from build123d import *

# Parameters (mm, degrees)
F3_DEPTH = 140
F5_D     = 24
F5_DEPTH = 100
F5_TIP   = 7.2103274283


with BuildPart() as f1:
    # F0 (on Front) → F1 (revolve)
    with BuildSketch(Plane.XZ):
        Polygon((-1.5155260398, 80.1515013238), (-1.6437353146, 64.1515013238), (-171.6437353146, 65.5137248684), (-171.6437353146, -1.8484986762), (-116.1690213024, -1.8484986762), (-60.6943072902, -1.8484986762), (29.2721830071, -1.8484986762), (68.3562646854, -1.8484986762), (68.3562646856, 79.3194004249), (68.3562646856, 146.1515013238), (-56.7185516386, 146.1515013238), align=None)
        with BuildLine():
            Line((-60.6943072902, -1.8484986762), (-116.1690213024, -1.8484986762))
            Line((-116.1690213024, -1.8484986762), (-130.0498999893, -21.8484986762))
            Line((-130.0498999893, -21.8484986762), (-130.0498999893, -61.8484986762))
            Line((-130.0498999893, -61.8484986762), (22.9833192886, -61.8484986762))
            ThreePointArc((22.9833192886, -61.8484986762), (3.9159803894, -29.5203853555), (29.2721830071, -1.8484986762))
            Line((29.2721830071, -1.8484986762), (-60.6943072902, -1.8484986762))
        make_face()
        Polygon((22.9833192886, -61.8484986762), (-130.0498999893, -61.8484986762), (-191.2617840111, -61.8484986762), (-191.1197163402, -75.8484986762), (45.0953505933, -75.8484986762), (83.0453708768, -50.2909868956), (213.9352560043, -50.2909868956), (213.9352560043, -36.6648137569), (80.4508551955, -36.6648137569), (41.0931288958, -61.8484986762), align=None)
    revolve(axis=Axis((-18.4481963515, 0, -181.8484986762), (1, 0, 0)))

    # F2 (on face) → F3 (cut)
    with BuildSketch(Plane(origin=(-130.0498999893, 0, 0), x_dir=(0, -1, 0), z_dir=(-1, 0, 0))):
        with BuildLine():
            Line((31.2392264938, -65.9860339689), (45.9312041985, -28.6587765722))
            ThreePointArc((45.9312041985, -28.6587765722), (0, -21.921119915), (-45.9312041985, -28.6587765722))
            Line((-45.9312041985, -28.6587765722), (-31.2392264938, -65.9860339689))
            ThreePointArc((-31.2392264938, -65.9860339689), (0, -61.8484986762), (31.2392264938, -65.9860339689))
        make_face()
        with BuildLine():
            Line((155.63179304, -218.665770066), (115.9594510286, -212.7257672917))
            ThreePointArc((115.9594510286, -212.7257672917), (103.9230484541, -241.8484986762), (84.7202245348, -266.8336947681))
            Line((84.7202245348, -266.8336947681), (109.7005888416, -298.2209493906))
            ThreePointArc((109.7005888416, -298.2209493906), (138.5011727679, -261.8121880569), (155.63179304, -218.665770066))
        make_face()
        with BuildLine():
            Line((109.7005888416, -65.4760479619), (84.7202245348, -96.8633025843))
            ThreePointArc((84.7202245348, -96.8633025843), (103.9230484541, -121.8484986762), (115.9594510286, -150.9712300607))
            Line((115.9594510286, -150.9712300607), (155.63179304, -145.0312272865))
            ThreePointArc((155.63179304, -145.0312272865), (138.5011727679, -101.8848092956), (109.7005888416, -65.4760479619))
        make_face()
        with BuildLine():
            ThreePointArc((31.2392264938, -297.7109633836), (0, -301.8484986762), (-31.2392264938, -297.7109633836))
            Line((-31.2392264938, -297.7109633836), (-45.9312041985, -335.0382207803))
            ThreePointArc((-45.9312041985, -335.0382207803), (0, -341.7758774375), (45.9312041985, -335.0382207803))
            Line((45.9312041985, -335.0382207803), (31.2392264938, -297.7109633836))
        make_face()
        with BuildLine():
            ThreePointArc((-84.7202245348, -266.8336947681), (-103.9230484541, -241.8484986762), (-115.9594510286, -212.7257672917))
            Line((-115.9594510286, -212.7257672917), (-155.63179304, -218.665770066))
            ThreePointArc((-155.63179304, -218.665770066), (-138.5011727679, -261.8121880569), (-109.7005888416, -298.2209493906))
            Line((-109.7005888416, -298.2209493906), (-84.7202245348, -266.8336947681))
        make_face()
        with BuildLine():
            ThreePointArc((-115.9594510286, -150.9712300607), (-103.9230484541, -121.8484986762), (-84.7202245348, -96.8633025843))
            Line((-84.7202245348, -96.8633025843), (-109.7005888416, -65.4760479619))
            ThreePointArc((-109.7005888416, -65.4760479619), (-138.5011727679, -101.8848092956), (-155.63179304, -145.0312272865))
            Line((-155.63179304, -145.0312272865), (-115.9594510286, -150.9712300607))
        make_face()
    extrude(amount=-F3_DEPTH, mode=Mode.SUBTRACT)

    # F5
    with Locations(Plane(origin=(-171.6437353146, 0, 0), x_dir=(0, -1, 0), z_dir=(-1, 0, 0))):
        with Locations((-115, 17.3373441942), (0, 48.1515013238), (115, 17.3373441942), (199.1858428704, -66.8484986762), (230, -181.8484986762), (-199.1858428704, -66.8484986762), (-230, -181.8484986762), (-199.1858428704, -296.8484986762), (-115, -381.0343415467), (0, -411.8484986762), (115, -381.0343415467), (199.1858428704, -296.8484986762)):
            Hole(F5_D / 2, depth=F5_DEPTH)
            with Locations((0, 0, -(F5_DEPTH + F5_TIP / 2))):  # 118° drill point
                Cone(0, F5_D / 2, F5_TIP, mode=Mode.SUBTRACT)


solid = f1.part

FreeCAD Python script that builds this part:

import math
import FreeCAD as App
import Part
import Sketcher

V = App.Vector
Q = App.Units.Quantity

doc = App.newDocument("Part")
body = doc.addObject("PartDesign::Body", "Body")

sketch1 = body.newObject("Sketcher::SketchObject", "Sketch")
sketch1.AttachmentSupport = (doc.getObject("XZ_Plane"), [""])
sketch1.MapMode = "FlatFace"
sketch1.addGeometry([
    Part.LineSegment(V(-1.515526, 80.151501, 0), V(-1.643735, 64.151501, 0)),
    Part.LineSegment(V(-1.643735, 64.151501, 0), V(-171.643735, 65.513725, 0)),
    Part.LineSegment(V(-171.643735, 65.513725, 0), V(-171.643735, -1.848499, 0)),
    Part.LineSegment(V(-171.643735, -1.848499, 0), V(-116.169021, -1.848499, 0)),
    Part.LineSegment(V(-116.169021, -1.848499, 0), V(-130.0499, -21.848499, 0)),
    Part.LineSegment(V(-130.0499, -21.848499, 0), V(-130.0499, -61.848499, 0)),
    Part.LineSegment(V(-130.0499, -61.848499, 0), V(-191.261784, -61.848499, 0)),
    Part.LineSegment(V(-191.261784, -61.848499, 0), V(-191.119716, -75.848499, 0)),
    Part.LineSegment(V(-191.119716, -75.848499, 0), V(45.095351, -75.848499, 0)),
    Part.LineSegment(V(45.095351, -75.848499, 0), V(83.045371, -50.290987, 0)),
    Part.LineSegment(V(83.045371, -50.290987, 0), V(213.935256, -50.290987, 0)),
    Part.LineSegment(V(213.935256, -50.290987, 0), V(213.935256, -36.664814, 0)),
    Part.LineSegment(V(213.935256, -36.664814, 0), V(80.450855, -36.664814, 0)),
    Part.LineSegment(V(80.450855, -36.664814, 0), V(41.093129, -61.848499, 0)),
    Part.LineSegment(V(41.093129, -61.848499, 0), V(22.983319, -61.848499, 0)),
    Part.ArcOfCircle(Part.Circle(V(35.281394, -32.807932, 0), V(0, 0, 1), 31.537234), math.radians(100.984497), math.radians(247.048355)),
    Part.LineSegment(V(29.272183, -1.848499, 0), V(68.356265, -1.848499, 0)),
    Part.LineSegment(V(68.356265, -1.848499, 0), V(68.356265, 79.3194, 0)),
    Part.LineSegment(V(68.356265, 79.3194, 0), V(68.356265, 146.151501, 0)),
    Part.LineSegment(V(68.356265, 146.151501, 0), V(-56.718552, 146.151501, 0)),
    Part.LineSegment(V(-56.718552, 146.151501, 0), V(-1.515526, 80.151501, 0)),
], False)
sketch1.addGeometry(Part.LineSegment(V(-191.261784, -181.848499, 0), V(213.935256, -181.848499, 0)), True)
sketch1.addConstraint([
    Sketcher.Constraint("Coincident", 0, 2, 1, 1),
    Sketcher.Constraint("Coincident", 1, 2, 2, 1),
    Sketcher.Constraint("Coincident", 2, 2, 3, 1),
    Sketcher.Constraint("Coincident", 3, 2, 4, 1),
    Sketcher.Constraint("Coincident", 4, 2, 5, 1),
    Sketcher.Constraint("Coincident", 5, 2, 6, 1),
    Sketcher.Constraint("Coincident", 6, 2, 7, 1),
    Sketcher.Constraint("Coincident", 7, 2, 8, 1),
    Sketcher.Constraint("Coincident", 8, 2, 9, 1),
    Sketcher.Constraint("Coincident", 9, 2, 10, 1),
    Sketcher.Constraint("Coincident", 10, 2, 11, 1),
    Sketcher.Constraint("Coincident", 11, 2, 12, 1),
    Sketcher.Constraint("Coincident", 12, 2, 13, 1),
    Sketcher.Constraint("Coincident", 13, 2, 14, 1),
    Sketcher.Constraint("Coincident", 14, 2, 15, 2),
    Sketcher.Constraint("Coincident", 15, 1, 16, 1),
    Sketcher.Constraint("Coincident", 16, 2, 17, 1),
    Sketcher.Constraint("Coincident", 17, 2, 18, 1),
    Sketcher.Constraint("Coincident", 18, 2, 19, 1),
    Sketcher.Constraint("Coincident", 19, 2, 20, 1),
    Sketcher.Constraint("Coincident", 20, 2, 0, 1),
    Sketcher.Constraint("Vertical", 2),
    Sketcher.Constraint("Horizontal", 3),
    Sketcher.Constraint("Vertical", 5),
    Sketcher.Constraint("Horizontal", 6),
    Sketcher.Constraint("Horizontal", 8),
    Sketcher.Constraint("Horizontal", 10),
    Sketcher.Constraint("Vertical", 11),
    Sketcher.Constraint("Horizontal", 12),
    Sketcher.Constraint("Horizontal", 14),
    Sketcher.Constraint("Horizontal", 16),
    Sketcher.Constraint("Vertical", 17),
    Sketcher.Constraint("Vertical", 18),
    Sketcher.Constraint("Horizontal", 19),
    Sketcher.Constraint("Horizontal", 21),
    Sketcher.Constraint("Perpendicular", 0, 1),
    Sketcher.Constraint("Horizontal", 6, 2, 13, 2),
    Sketcher.Constraint("Horizontal", 3, 2, 15, 1),
    Sketcher.Constraint("Vertical", 6, 2, 21, 1),
    Sketcher.Constraint("Vertical", 11, 2, 21, 2),
    Sketcher.Constraint("DistanceY", 5, 2, 5, 1, Q("40 mm")),
    Sketcher.Constraint("DistanceX", 1, 2, 0, 2, Q("170 mm")),
    Sketcher.Constraint("DistanceY", 2, 2, 0, 2, Q("66 mm")),
    Sketcher.Constraint("DistanceY", 4, 2, 3, 2, Q("20 mm")),
    Sketcher.Constraint("DistanceY", 7, 2, 6, 2, Q("14 mm")),
    Sketcher.Constraint("DistanceX", 0, 2, 17, 2, Q("70 mm")),
    Sketcher.Constraint("DistanceY", 0, 2, 18, 2, Q("82 mm")),
    Sketcher.Constraint("DistanceY", 0, 2, 20, 2, Q("16 mm")),
    Sketcher.Constraint("DistanceY", 21, 1, 7, 2, Q("106 mm")),
    Sketcher.Constraint("DistanceX", 12, 2, 12, 1, Q("133.484401 mm")),
    Sketcher.Constraint("DistanceY", 17, 1, 17, 2, Q("81.167899 mm")),
    Sketcher.Constraint("Radius", 15, Q("31.537234 mm")),
    Sketcher.Constraint("DistanceX", 14, 2, 14, 1, Q("18.10981 mm")),
    Sketcher.Constraint("DistanceX", 16, 1, 16, 2, Q("39.084082 mm")),
    Sketcher.Constraint("DistanceX", 21, 1, 21, 2, Q("405.19704 mm")),
    Sketcher.Constraint("DistanceY", -1, 1, 0, 2, Q("64.151501 mm")),
    Sketcher.Constraint("DistanceX", 4, 2, -1, 1, Q("130.0499 mm")),
    Sketcher.Constraint("Distance", 7, Q("14.000721 mm")),
    Sketcher.Constraint("Distance", 20, Q("86.042862 mm")),
    Sketcher.Constraint("DistanceX", 3, 1, 3, 2, Q("55.474714 mm")),
    Sketcher.Constraint("DistanceX", 6, 2, 6, 1, Q("61.211884 mm")),
    Sketcher.Constraint("DistanceX", 8, 1, 8, 2, Q("236.215067 mm")),
    Sketcher.Constraint("DistanceX", 10, 1, 10, 2, Q("130.889885 mm")),
    Sketcher.Constraint("DistanceX", 19, 2, 19, 1, Q("125.074816 mm")),
    Sketcher.Constraint("DistanceY", 11, 1, 11, 2, Q("13.626173 mm")),
    Sketcher.Constraint("DistanceX", 3, 2, -1, 1, Q("116.169021 mm")),
    Sketcher.Constraint("DistanceX", -1, 1, 13, 2, Q("41.093129 mm")),
    Sketcher.Constraint("DistanceY", 8, 2, 9, 2, Q("25.557512 mm")),
])
revolution = body.newObject("PartDesign::Revolution", "Revolution")
revolution.Profile = sketch1
revolution.ReferenceAxis = (sketch1, ["Axis0"])
revolution.Angle = 360

sketch2 = body.newObject("Sketcher::SketchObject", "Sketch001")
sketch2.AttachmentSupport = (doc.getObject("YZ_Plane"), [""])
sketch2.MapMode = "FlatFace"
sketch2.AttachmentOffset = App.Placement(V(0, 0, -130.0499), App.Rotation())
sketch2.addGeometry([
    Part.LineSegment(V(-31.239226, -65.986034, 0), V(-45.931204, -28.658777, 0)),
    Part.ArcOfCircle(Part.Circle(V(0, -181.848499, 0), V(0, 0, 1), 159.927379), math.radians(73.309579), math.radians(106.690421)),
    Part.LineSegment(V(45.931204, -28.658777, 0), V(31.239226, -65.986034, 0)),
    Part.ArcOfCircle(Part.Circle(V(0, -181.848499, 0), V(0, 0, 1), 120), math.radians(74.910541), math.radians(105.089459)),
    Part.LineSegment(V(-155.631793, -218.66577, 0), V(-115.959451, -212.725767, 0)),
    Part.ArcOfCircle(Part.Circle(V(0, -181.848499, 0), V(0, 0, 1), 120), math.radians(-165.089459), math.radians(-134.910541)),
    Part.LineSegment(V(-84.720225, -266.833695, 0), V(-109.700589, -298.220949, 0)),
    Part.ArcOfCircle(Part.Circle(V(0, -181.848499, 0), V(0, 0, 1), 159.927379), math.radians(-166.690421), math.radians(-133.309579)),
    Part.LineSegment(V(-109.700589, -65.476048, 0), V(-84.720225, -96.863303, 0)),
    Part.ArcOfCircle(Part.Circle(V(0, -181.848499, 0), V(0, 0, 1), 120), math.radians(134.910541), math.radians(165.089459)),
    Part.LineSegment(V(-115.959451, -150.97123, 0), V(-155.631793, -145.031227, 0)),
    Part.ArcOfCircle(Part.Circle(V(0, -181.848499, 0), V(0, 0, 1), 159.927379), math.radians(133.309579), math.radians(166.690421)),
    Part.ArcOfCircle(Part.Circle(V(0, -181.848499, 0), V(0, 0, 1), 120), math.radians(-105.089459), math.radians(-74.910541)),
    Part.LineSegment(V(31.239226, -297.710963, 0), V(45.931204, -335.038221, 0)),
    Part.ArcOfCircle(Part.Circle(V(0, -181.848499, 0), V(0, 0, 1), 159.927379), math.radians(-106.690421), math.radians(-73.309579)),
    Part.LineSegment(V(-45.931204, -335.038221, 0), V(-31.239226, -297.710963, 0)),
    Part.ArcOfCircle(Part.Circle(V(0, -181.848499, 0), V(0, 0, 1), 120), math.radians(-45.089459), math.radians(-14.910541)),
    Part.LineSegment(V(115.959451, -212.725767, 0), V(155.631793, -218.66577, 0)),
    Part.ArcOfCircle(Part.Circle(V(0, -181.848499, 0), V(0, 0, 1), 159.927379), math.radians(-46.690421), math.radians(-13.309579)),
    Part.LineSegment(V(109.700589, -298.220949, 0), V(84.720225, -266.833695, 0)),
    Part.ArcOfCircle(Part.Circle(V(0, -181.848499, 0), V(0, 0, 1), 120), math.radians(14.910541), math.radians(45.089459)),
    Part.LineSegment(V(84.720225, -96.863303, 0), V(109.700589, -65.476048, 0)),
    Part.ArcOfCircle(Part.Circle(V(0, -181.848499, 0), V(0, 0, 1), 159.927379), math.radians(13.309579), math.radians(46.690421)),
    Part.LineSegment(V(155.631793, -145.031227, 0), V(115.959451, -150.97123, 0)),
], False)
sketch2.addConstraint([
    Sketcher.Constraint("Coincident", 0, 2, 1, 2),
    Sketcher.Constraint("Coincident", 1, 1, 2, 1),
    Sketcher.Constraint("Coincident", 2, 2, 3, 1),
    Sketcher.Constraint("Coincident", 3, 2, 0, 1),
    Sketcher.Constraint("Coincident", 4, 2, 5, 1),
    Sketcher.Constraint("Coincident", 5, 2, 6, 1),
    Sketcher.Constraint("Coincident", 6, 2, 7, 2),
    Sketcher.Constraint("Coincident", 7, 1, 4, 1),
    Sketcher.Constraint("Coincident", 8, 2, 9, 1),
    Sketcher.Constraint("Coincident", 9, 2, 10, 1),
    Sketcher.Constraint("Coincident", 10, 2, 11, 2),
    Sketcher.Constraint("Coincident", 11, 1, 8, 1),
    Sketcher.Constraint("Coincident", 12, 2, 13, 1),
    Sketcher.Constraint("Coincident", 13, 2, 14, 2),
    Sketcher.Constraint("Coincident", 14, 1, 15, 1),
    Sketcher.Constraint("Coincident", 15, 2, 12, 1),
    Sketcher.Constraint("Coincident", 16, 2, 17, 1),
    Sketcher.Constraint("Coincident", 17, 2, 18, 2),
    Sketcher.Constraint("Coincident", 18, 1, 19, 1),
    Sketcher.Constraint("Coincident", 19, 2, 16, 1),
    Sketcher.Constraint("Coincident", 20, 2, 21, 1),
    Sketcher.Constraint("Coincident", 21, 2, 22, 2),
    Sketcher.Constraint("Coincident", 22, 1, 23, 1),
    Sketcher.Constraint("Coincident", 23, 2, 20, 1),
    Sketcher.Constraint("Coincident", 3, 3, 1, 3),
    Sketcher.Constraint("Coincident", 5, 3, 1, 3),
    Sketcher.Constraint("Coincident", 7, 3, 1, 3),
    Sketcher.Constraint("Coincident", 9, 3, 1, 3),
    Sketcher.Constraint("Coincident", 11, 3, 1, 3),
    Sketcher.Constraint("Coincident", 12, 3, 1, 3),
    Sketcher.Constraint("Coincident", 14, 3, 1, 3),
    Sketcher.Constraint("Coincident", 16, 3, 1, 3),
    Sketcher.Constraint("Coincident", 18, 3, 1, 3),
    Sketcher.Constraint("Coincident", 20, 3, 1, 3),
    Sketcher.Constraint("Coincident", 22, 3, 1, 3),
    Sketcher.Constraint("Equal", 3, 5),
    Sketcher.Constraint("Equal", 1, 7),
    Sketcher.Constraint("Equal", 5, 9),
    Sketcher.Constraint("Equal", 7, 11),
    Sketcher.Constraint("Equal", 9, 12),
    Sketcher.Constraint("Equal", 11, 14),
    Sketcher.Constraint("Equal", 12, 16),
    Sketcher.Constraint("Equal", 14, 18),
    Sketcher.Constraint("Equal", 16, 20),
    Sketcher.Constraint("Equal", 18, 22),
    Sketcher.Constraint("Symmetric", 0, 2, 1, 1, -2),
    Sketcher.Constraint("Parallel", 0, 13),
    Sketcher.Constraint("Parallel", 2, 15),
    Sketcher.Constraint("Parallel", 10, 17),
    Sketcher.Constraint("Parallel", 8, 19),
    Sketcher.Constraint("Parallel", 6, 21),
    Sketcher.Constraint("Parallel", 4, 23),
    Sketcher.Constraint("Horizontal", 2, 2, 3, 2),
    Sketcher.Constraint("Horizontal", 13, 2, 14, 1),
    Sketcher.Constraint("Horizontal", 4, 2, 16, 2),
    Sketcher.Constraint("Horizontal", 7, 1, 17, 2),
    Sketcher.Constraint("Horizontal", 6, 2, 18, 1),
    Sketcher.Constraint("Horizontal", 5, 2, 19, 2),
    Sketcher.Constraint("Horizontal", 8, 2, 20, 2),
    Sketcher.Constraint("Horizontal", 10, 2, 22, 1),
    Sketcher.Constraint("Vertical", 5, 2, 8, 2),
    Sketcher.Constraint("Vertical", 4, 2, 9, 2),
    Sketcher.Constraint("Vertical", 2, 2, 12, 2),
    Sketcher.Constraint("Equal", 2, 4),
    Sketcher.Constraint("Equal", 4, 6),
    Sketcher.Constraint("Radius", 3, Q("120 mm")),
    Sketcher.Constraint("Radius", 1, Q("159.927379 mm")),
    Sketcher.Constraint("DistanceX", 8, 2, 3, 2, Q("53.480998 mm")),
    Sketcher.Constraint("DistanceY", 1, 3, -1, 1, Q("181.848499 mm")),
    Sketcher.Constraint("DistanceX", 4, 2, -1, 1, Q("115.959451 mm")),
    Sketcher.Constraint("DistanceX", 6, 2, -1, 1, Q("109.700589 mm")),
    Sketcher.Constraint("DistanceY", 13, 2, -1, 1, Q("335.038221 mm")),
])
pocket1 = body.newObject("PartDesign::Pocket", "Pocket")
pocket1.Profile = sketch2
pocket1.Length = 140
pocket1.Reversed = True

sketch3 = body.newObject("Sketcher::SketchObject", "Sketch002")
sketch3.AttachmentSupport = (doc.getObject("YZ_Plane"), [""])
sketch3.MapMode = "FlatFace"
sketch3.AttachmentOffset = App.Placement(V(0, 0, -171.643735), App.Rotation())
sketch3.addGeometry([
    Part.Circle(V(115, 17.337344, 0), V(0, 0, 1), 12),
    Part.Circle(V(0, 48.151501, 0), V(0, 0, 1), 12),
    Part.Circle(V(-115, 17.337344, 0), V(0, 0, 1), 12),
    Part.Circle(V(-199.185843, -66.848499, 0), V(0, 0, 1), 12),
    Part.Circle(V(-230, -181.848499, 0), V(0, 0, 1), 12),
    Part.Circle(V(199.185843, -66.848499, 0), V(0, 0, 1), 12),
    Part.Circle(V(230, -181.848499, 0), V(0, 0, 1), 12),
    Part.Circle(V(199.185843, -296.848499, 0), V(0, 0, 1), 12),
    Part.Circle(V(115, -381.034342, 0), V(0, 0, 1), 12),
    Part.Circle(V(0, -411.848499, 0), V(0, 0, 1), 12),
    Part.Circle(V(-115, -381.034342, 0), V(0, 0, 1), 12),
    Part.Circle(V(-199.185843, -296.848499, 0), V(0, 0, 1), 12),
], False)
sketch3.addConstraint([
    Sketcher.Constraint("Equal", 0, 1),
    Sketcher.Constraint("Equal", 1, 2),
    Sketcher.Constraint("Equal", 2, 3),
    Sketcher.Constraint("Equal", 3, 4),
    Sketcher.Constraint("Equal", 4, 5),
    Sketcher.Constraint("Equal", 5, 6),
    Sketcher.Constraint("Equal", 6, 7),
    Sketcher.Constraint("Equal", 7, 8),
    Sketcher.Constraint("Equal", 8, 9),
    Sketcher.Constraint("Equal", 9, 10),
    Sketcher.Constraint("Equal", 10, 11),
    Sketcher.Constraint("Symmetric", 0, 3, 2, 3, -2),
    Sketcher.Constraint("Symmetric", 3, 3, 5, 3, -2),
    Sketcher.Constraint("Symmetric", 4, 3, 6, 3, -2),
    Sketcher.Constraint("Symmetric", 8, 3, 10, 3, -2),
    Sketcher.Constraint("Symmetric", 7, 3, 11, 3, -2),
    Sketcher.Constraint("PointOnObject", 1, 3, -2),
    Sketcher.Constraint("PointOnObject", 9, 3, -2),
    Sketcher.Constraint("Vertical", 5, 3, 7, 3),
    Sketcher.Constraint("Vertical", 0, 3, 8, 3),
    Sketcher.Constraint("Diameter", 0, Q("24 mm")),
    Sketcher.Constraint("DistanceX", -1, 1, 0, 3, Q("115 mm")),
    Sketcher.Constraint("DistanceX", 4, 3, -1, 1, Q("230 mm")),
    Sketcher.Constraint("DistanceY", 3, 3, 1, 3, Q("115 mm")),
    Sketcher.Constraint("DistanceY", 4, 3, 3, 3, Q("115 mm")),
    Sketcher.Constraint("DistanceY", 7, 3, 6, 3, Q("115 mm")),
    Sketcher.Constraint("DistanceY", 9, 3, 7, 3, Q("115 mm")),
    Sketcher.Constraint("DistanceY", -1, 1, 1, 3, Q("48.151501 mm")),
    Sketcher.Constraint("DistanceY", 8, 3, -1, 1, Q("381.034342 mm")),
    Sketcher.Constraint("DistanceY", -1, 1, 0, 3, Q("17.337344 mm")),
    Sketcher.Constraint("DistanceX", 3, 3, -1, 1, Q("199.185843 mm")),
])
doc.recompute()
hole = body.newObject("PartDesign::Hole", "Hole")
hole.Profile = sketch3
hole.ThreadType = "None"
hole.Diameter = 24
hole.DepthType = "Dimension"
hole.Depth = 100
hole.DrillPoint = "Angled"
hole.DrillPointAngle = 118
hole.Reversed = True

doc.recompute()
